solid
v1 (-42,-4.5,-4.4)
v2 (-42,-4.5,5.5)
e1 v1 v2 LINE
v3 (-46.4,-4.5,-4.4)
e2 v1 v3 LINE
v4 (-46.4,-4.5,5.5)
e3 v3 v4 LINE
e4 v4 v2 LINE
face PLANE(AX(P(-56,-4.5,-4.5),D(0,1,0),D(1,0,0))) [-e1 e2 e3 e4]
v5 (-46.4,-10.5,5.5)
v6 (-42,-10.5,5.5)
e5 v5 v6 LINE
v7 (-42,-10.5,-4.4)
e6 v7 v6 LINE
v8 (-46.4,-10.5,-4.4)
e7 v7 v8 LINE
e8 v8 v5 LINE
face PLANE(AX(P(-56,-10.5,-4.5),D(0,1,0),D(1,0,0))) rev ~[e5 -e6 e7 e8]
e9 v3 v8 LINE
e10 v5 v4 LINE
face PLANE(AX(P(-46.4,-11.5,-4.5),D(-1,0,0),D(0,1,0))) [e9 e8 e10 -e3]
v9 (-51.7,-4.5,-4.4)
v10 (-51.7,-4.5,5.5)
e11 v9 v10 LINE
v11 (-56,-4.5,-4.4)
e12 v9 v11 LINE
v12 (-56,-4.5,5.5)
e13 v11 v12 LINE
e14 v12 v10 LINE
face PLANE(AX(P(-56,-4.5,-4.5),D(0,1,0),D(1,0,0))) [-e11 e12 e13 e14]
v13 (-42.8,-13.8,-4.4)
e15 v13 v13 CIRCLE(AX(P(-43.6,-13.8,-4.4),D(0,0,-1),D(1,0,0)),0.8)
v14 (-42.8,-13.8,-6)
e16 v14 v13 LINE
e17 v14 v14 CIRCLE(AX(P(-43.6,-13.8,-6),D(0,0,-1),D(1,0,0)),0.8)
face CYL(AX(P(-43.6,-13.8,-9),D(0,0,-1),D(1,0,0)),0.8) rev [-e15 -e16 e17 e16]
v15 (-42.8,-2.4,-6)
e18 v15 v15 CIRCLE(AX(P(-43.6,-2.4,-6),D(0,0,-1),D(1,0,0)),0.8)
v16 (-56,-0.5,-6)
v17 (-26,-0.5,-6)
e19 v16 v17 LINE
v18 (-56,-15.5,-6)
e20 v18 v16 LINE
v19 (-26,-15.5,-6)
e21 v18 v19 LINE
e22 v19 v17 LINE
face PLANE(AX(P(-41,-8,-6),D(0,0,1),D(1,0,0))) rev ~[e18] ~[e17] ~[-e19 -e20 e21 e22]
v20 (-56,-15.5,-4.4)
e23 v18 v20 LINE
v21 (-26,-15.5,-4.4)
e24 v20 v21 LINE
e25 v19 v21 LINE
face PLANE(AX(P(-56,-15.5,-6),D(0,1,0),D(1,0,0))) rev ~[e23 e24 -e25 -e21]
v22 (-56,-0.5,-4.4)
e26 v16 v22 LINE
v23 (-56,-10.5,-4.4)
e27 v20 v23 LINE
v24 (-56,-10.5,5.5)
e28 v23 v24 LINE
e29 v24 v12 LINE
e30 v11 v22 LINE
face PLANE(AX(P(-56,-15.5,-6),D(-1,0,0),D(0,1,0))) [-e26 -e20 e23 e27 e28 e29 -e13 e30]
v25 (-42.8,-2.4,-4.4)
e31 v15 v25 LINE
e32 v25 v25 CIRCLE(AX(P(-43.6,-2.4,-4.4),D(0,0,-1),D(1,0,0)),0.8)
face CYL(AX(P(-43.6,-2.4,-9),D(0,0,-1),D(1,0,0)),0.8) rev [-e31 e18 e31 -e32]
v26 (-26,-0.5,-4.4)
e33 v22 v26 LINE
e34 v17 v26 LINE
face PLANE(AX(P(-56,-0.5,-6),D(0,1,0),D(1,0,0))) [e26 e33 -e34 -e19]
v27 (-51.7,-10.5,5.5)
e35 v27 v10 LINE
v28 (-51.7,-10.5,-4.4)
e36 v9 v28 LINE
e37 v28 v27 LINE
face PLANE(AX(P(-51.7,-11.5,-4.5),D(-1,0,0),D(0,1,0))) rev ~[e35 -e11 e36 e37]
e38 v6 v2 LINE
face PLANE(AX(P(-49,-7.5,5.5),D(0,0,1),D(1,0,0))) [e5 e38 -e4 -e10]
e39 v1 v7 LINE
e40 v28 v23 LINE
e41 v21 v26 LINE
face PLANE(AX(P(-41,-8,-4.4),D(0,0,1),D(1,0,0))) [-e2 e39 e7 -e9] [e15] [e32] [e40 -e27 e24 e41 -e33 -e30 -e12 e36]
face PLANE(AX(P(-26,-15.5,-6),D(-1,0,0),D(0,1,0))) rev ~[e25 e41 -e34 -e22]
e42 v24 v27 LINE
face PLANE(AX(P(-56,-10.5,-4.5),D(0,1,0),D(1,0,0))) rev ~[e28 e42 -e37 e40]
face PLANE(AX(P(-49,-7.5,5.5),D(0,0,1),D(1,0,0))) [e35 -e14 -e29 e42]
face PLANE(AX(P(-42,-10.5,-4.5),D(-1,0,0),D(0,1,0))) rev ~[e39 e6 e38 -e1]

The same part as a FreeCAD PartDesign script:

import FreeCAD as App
import Part
import Sketcher
from FreeCAD import Vector


def add_polygon(sketch, points):
    """Adds a closed chain of lines whose ends are joined by coincident constraints."""
    first, n = sketch.GeometryCount, len(points)
    for a, b in zip(points, points[1:] + points[:1]):
        sketch.addGeometry(Part.LineSegment(App.Vector(*a, 0), App.Vector(*b, 0)), False)
    for i in range(n):
        sketch.addConstraint(Sketcher.Constraint("Coincident", first + i, 2, first + (i + 1) % n, 1))

doc = App.newDocument("Part")
body = doc.addObject("PartDesign::Body", "Body")

# Sketch on XY plane
sketch1 = body.newObject("Sketcher::SketchObject", "Sketch")
sketch1.AttachmentSupport = (doc.getObject("XY_Plane"), [""])
sketch1.MapMode = "FlatFace"
sketch1.AttachmentOffset = App.Placement(Vector(0, 0, -9), App.Rotation())
sketch1.addGeometry(Part.Circle(Vector(-43.6, -13.8, 0), Vector(0, 0, 1), 0.8), False)
sketch1.addConstraint(Sketcher.Constraint("Diameter", 0, 1.6))
sketch1.addConstraint(Sketcher.Constraint("DistanceX", 0, 3, -1, 1, 43.6))
sketch1.addConstraint(Sketcher.Constraint("DistanceY", 0, 3, -1, 1, 13.8))
pad1 = body.newObject("PartDesign::Pad", "Pad")
pad1.Profile = sketch1
pad1.Length = 14.5
body2 = doc.addObject("PartDesign::Body", "Body001")
body2.AllowCompound = True

# Sketch on XY plane
sketch2 = body2.newObject("Sketcher::SketchObject", "Sketch001")
sketch2.AttachmentSupport = (doc.getObject("XY_Plane001"), [""])
sketch2.MapMode = "FlatFace"
sketch2.AttachmentOffset = App.Placement(Vector(0, 0, -9), App.Rotation())
sketch2.addGeometry(Part.Circle(Vector(-43.6, -2.4, 0), Vector(0, 0, 1), 0.8), False)
sketch2.addConstraint(Sketcher.Constraint("Diameter", 0, 1.6))
sketch2.addConstraint(Sketcher.Constraint("DistanceX", 0, 3, -1, 1, 43.6))
sketch2.addConstraint(Sketcher.Constraint("DistanceY", 0, 3, -1, 1, 2.4))
pad2 = body2.newObject("PartDesign::Pad", "Pad001")
pad2.Profile = sketch2
pad2.Length = 14.5
doc.recompute()

boolean = body2.newObject("PartDesign::Boolean", "Boolean")
boolean.Type = "Fuse"
boolean.addObjects([body])
body3 = doc.addObject("PartDesign::Body", "Body002")

# Sketch on XY plane
sketch3 = body3.newObject("Sketcher::SketchObject", "Sketch002")
sketch3.AttachmentSupport = (doc.getObject("XY_Plane002"), [""])
sketch3.MapMode = "FlatFace"
sketch3.AttachmentOffset = App.Placement(Vector(0, 0, -4.5), App.Rotation())
add_polygon(sketch3, [(-51.7, -3.5), (-51.7, -11.5), (-46.4, -11.5), (-46.4, -3.5)])  # lines 0-3
sketch3.addConstraint(Sketcher.Constraint("Vertical", 0))
sketch3.addConstraint(Sketcher.Constraint("Horizontal", 1))
sketch3.addConstraint(Sketcher.Constraint("Vertical", 2))
sketch3.addConstraint(Sketcher.Constraint("Horizontal", 3))
sketch3.addConstraint(Sketcher.Constraint("DistanceY", 0, 2, 0, 1, 8.0))
sketch3.addConstraint(Sketcher.Constraint("DistanceX", 1, 1, 1, 2, 5.3))
sketch3.addConstraint(Sketcher.Constraint("DistanceX", 0, 2, -1, 1, 51.7))
sketch3.addConstraint(Sketcher.Constraint("DistanceY", 0, 2, -1, 1, 11.5))
pad3 = body3.newObject("PartDesign::Pad", "Pad002")
pad3.Profile = sketch3
pad3.Length = 10
body4 = doc.addObject("PartDesign::Body", "Body003")
body4.AllowCompound = True

# Sketch on XY plane
sketch4 = body4.newObject("Sketcher::SketchObject", "Sketch003")
sketch4.AttachmentSupport = (doc.getObject("XY_Plane003"), [""])
sketch4.MapMode = "FlatFace"
sketch4.AttachmentOffset = App.Placement(Vector(0, 0, -4.5), App.Rotation())
add_polygon(sketch4, [(-56, -4.5), (-56, -10.5), (-42, -10.5), (-42, -4.5)])  # lines 0-3
sketch4.addConstraint(Sketcher.Constraint("Vertical", 0))
sketch4.addConstraint(Sketcher.Constraint("Horizontal", 1))
sketch4.addConstraint(Sketcher.Constraint("Vertical", 2))
sketch4.addConstraint(Sketcher.Constraint("Horizontal", 3))
sketch4.addConstraint(Sketcher.Constraint("DistanceX", 1, 1, 1, 2, 14.0))
sketch4.addConstraint(Sketcher.Constraint("DistanceY", 0, 2, 0, 1, 6.0))
sketch4.addConstraint(Sketcher.Constraint("DistanceX", 0, 2, -1, 1, 56.0))
sketch4.addConstraint(Sketcher.Constraint("DistanceY", 0, 2, -1, 1, 10.5))
pad4 = body4.newObject("PartDesign::Pad", "Pad003")
pad4.Profile = sketch4
pad4.Length = 10
doc.recompute()

boolean2 = body4.newObject("PartDesign::Boolean", "Boolean001")
boolean2.Type = "Cut"
boolean2.addObjects([body3])
body5 = doc.addObject("PartDesign::Body", "Body004")

# Sketch on XY plane
sketch5 = body5.newObject("Sketcher::SketchObject", "Sketch004")
sketch5.AttachmentSupport = (doc.getObject("XY_Plane004"), [""])
sketch5.MapMode = "FlatFace"
sketch5.AttachmentOffset = App.Placement(Vector(0, 0, -6), App.Rotation())
add_polygon(sketch5, [(-56, -0.5), (-56, -15.5), (-26, -15.5), (-26, -0.5)])  # lines 0-3
sketch5.addConstraint(Sketcher.Constraint("Vertical", 0))
sketch5.addConstraint(Sketcher.Constraint("Horizontal", 1))
sketch5.addConstraint(Sketcher.Constraint("Vertical", 2))
sketch5.addConstraint(Sketcher.Constraint("Horizontal", 3))
sketch5.addConstraint(Sketcher.Constraint("DistanceX", 1, 1, 1, 2, 30.0))
sketch5.addConstraint(Sketcher.Constraint("DistanceY", 0, 2, 0, 1, 15.0))
sketch5.addConstraint(Sketcher.Constraint("DistanceX", 0, 2, -1, 1, 56.0))
sketch5.addConstraint(Sketcher.Constraint("DistanceY", 0, 2, -1, 1, 15.5))
pad5 = body5.newObject("PartDesign::Pad", "Pad004")
pad5.Profile = sketch5
pad5.Length = 1.6
doc.recompute()

boolean3 = body5.newObject("PartDesign::Boolean", "Boolean002")
boolean3.Type = "Fuse"
boolean3.addObjects([body4])
doc.recompute()

boolean4 = body5.newObject("PartDesign::Boolean", "Boolean003")
boolean4.Type = "Cut"
boolean4.addObjects([body2])

doc.recompute()
